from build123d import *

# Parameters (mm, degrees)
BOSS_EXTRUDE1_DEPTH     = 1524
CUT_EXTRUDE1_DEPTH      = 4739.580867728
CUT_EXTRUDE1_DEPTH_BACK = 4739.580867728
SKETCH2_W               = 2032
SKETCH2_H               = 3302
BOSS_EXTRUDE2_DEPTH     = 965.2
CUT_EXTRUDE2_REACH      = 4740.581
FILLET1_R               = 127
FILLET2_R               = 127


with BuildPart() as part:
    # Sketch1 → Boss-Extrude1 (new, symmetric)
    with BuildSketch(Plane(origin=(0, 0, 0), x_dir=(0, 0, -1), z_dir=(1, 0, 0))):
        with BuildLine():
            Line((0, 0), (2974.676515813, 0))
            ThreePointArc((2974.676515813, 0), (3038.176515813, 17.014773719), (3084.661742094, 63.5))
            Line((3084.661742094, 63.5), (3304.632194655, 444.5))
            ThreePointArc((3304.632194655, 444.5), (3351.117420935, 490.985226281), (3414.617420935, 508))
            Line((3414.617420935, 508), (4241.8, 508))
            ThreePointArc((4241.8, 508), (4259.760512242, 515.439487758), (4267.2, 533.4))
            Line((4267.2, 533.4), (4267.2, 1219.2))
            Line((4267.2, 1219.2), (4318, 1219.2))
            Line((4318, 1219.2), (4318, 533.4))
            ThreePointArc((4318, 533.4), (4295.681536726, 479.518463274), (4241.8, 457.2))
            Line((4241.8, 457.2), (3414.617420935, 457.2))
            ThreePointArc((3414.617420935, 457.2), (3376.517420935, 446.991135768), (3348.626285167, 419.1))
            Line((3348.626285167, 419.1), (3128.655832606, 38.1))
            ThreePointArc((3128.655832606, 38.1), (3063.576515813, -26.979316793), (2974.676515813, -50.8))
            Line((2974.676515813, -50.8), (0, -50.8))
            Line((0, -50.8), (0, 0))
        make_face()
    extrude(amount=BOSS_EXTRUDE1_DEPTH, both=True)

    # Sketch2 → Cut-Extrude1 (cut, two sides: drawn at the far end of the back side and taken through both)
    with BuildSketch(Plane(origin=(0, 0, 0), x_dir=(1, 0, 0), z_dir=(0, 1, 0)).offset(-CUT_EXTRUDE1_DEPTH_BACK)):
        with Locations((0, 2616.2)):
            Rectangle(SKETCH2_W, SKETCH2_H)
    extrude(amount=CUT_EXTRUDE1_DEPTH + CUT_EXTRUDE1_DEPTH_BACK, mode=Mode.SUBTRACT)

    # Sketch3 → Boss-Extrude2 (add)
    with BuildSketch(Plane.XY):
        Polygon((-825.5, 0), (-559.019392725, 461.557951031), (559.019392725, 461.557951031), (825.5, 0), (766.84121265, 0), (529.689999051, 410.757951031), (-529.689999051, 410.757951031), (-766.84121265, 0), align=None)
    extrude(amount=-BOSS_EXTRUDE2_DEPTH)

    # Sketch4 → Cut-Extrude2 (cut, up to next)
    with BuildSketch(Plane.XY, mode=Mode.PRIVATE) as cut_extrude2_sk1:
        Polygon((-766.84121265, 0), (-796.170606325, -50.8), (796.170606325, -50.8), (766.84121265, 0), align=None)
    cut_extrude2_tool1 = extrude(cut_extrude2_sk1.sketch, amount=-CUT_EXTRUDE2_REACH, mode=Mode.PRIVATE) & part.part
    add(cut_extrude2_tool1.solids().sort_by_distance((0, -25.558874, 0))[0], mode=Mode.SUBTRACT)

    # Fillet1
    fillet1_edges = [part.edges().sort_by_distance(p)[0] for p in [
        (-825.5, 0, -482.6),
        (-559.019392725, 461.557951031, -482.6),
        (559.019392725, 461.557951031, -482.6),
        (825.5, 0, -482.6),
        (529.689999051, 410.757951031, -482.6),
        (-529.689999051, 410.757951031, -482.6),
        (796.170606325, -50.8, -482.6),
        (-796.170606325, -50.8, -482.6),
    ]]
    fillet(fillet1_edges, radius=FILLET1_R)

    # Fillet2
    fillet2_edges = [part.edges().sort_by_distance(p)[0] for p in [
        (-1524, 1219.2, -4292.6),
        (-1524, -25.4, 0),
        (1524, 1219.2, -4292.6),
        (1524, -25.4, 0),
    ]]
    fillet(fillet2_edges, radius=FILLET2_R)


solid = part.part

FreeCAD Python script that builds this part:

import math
import FreeCAD as App
import Part
import Sketcher
from FreeCAD import Vector
Q = App.Units.Quantity


def edges_at(feature, points):
    """Names of the edges that pass closest to the given points."""
    edges = feature.Shape.Edges
    near = lambda p: min(range(len(edges)), key=lambda i: edges[i].distToShape(Part.Vertex(*p))[0])
    return sorted({f"Edge{near(p) + 1}" for p in points})


def add_polygon(sketch, points):
    """Adds a closed chain of lines whose ends are joined by coincident constraints."""
    first, n = sketch.GeometryCount, len(points)
    for a, b in zip(points, points[1:] + points[:1]):
        sketch.addGeometry(Part.LineSegment(App.Vector(*a, 0), App.Vector(*b, 0)), False)
    for i in range(n):
        sketch.addConstraint(Sketcher.Constraint("Coincident", first + i, 2, first + (i + 1) % n, 1))

doc = App.newDocument("Part")
body = doc.addObject("PartDesign::Body", "Body")

sketch1 = doc.addObject("Sketcher::SketchObject", "Sketch")
body.addObject(sketch1)
sketch1.AttachmentSupport = (doc.YZ_Plane, [""])
sketch1.MapMode = "FlatFace"
sketch1.addGeometry(Part.LineSegment(Vector(0, -2975, 0), Vector(0, 0, 0)), False)
sketch1.addGeometry(Part.LineSegment(Vector(0, 0, 0), Vector(-51, 0, 0)), False)
sketch1.addGeometry(Part.LineSegment(Vector(-51, 0, 0), Vector(-51, -2975, 0)), False)
sketch1.addGeometry(Part.ArcOfCircle(Part.Circle(Vector(127, -2975, 0), Vector(0, 0, 1), 178), math.radians(180), math.radians(240)), False)
sketch1.addGeometry(Part.LineSegment(Vector(38, -3129, 0), Vector(419, -3349, 0)), False)
sketch1.addGeometry(Part.ArcOfCircle(Part.Circle(Vector(381, -3415, 0), Vector(0, 0, 1), 76), math.radians(0), math.radians(60)), False)
sketch1.addGeometry(Part.LineSegment(Vector(457, -3415, 0), Vector(457, -4242, 0)), False)
sketch1.addGeometry(Part.ArcOfCircle(Part.Circle(Vector(533, -4242, 0), Vector(0, 0, 1), 76), math.radians(-180), math.radians(-90)), False)
sketch1.addGeometry(Part.LineSegment(Vector(533, -4318, 0), Vector(1219, -4318, 0)), False)
sketch1.addGeometry(Part.LineSegment(Vector(1219, -4318, 0), Vector(1219, -4267, 0)), False)
sketch1.addGeometry(Part.LineSegment(Vector(1219, -4267, 0), Vector(533, -4267, 0)), False)
sketch1.addGeometry(Part.ArcOfCircle(Part.Circle(Vector(533, -4242, 0), Vector(0, 0, 1), 25), math.radians(180), math.radians(270)), False)
sketch1.addGeometry(Part.LineSegment(Vector(508, -4242, 0), Vector(508, -3415, 0)), False)
sketch1.addGeometry(Part.ArcOfCircle(Part.Circle(Vector(381, -3415, 0), Vector(0, 0, 1), 127), math.radians(0), math.radians(60)), False)
sketch1.addGeometry(Part.LineSegment(Vector(444, -3305, 0), Vector(64, -3085, 0)), False)
sketch1.addGeometry(Part.ArcOfCircle(Part.Circle(Vector(127, -2975, 0), Vector(0, 0, 1), 127), math.radians(180), math.radians(240)), False)
sketch1.addConstraint(Sketcher.Constraint("Coincident", 0, 2, 1, 1))
sketch1.addConstraint(Sketcher.Constraint("Coincident", 1, 2, 2, 1))
sketch1.addConstraint(Sketcher.Constraint("Tangent", 2, 2, 3, 1))
sketch1.addConstraint(Sketcher.Constraint("Tangent", 3, 2, 4, 1))
sketch1.addConstraint(Sketcher.Constraint("Tangent", 4, 2, 5, 2))
sketch1.addConstraint(Sketcher.Constraint("Tangent", 5, 1, 6, 1))
sketch1.addConstraint(Sketcher.Constraint("Tangent", 6, 2, 7, 1))
sketch1.addConstraint(Sketcher.Constraint("Tangent", 7, 2, 8, 1))
sketch1.addConstraint(Sketcher.Constraint("Coincident", 8, 2, 9, 1))
sketch1.addConstraint(Sketcher.Constraint("Coincident", 9, 2, 10, 1))
sketch1.addConstraint(Sketcher.Constraint("Tangent", 10, 2, 11, 2))
sketch1.addConstraint(Sketcher.Constraint("Tangent", 11, 1, 12, 1))
sketch1.addConstraint(Sketcher.Constraint("Tangent", 12, 2, 13, 1))
sketch1.addConstraint(Sketcher.Constraint("Tangent", 13, 2, 14, 1))
sketch1.addConstraint(Sketcher.Constraint("Tangent", 14, 2, 15, 2))
sketch1.addConstraint(Sketcher.Constraint("Tangent", 15, 1, 0, 1))
sketch1.addConstraint(Sketcher.Constraint("Vertical", 0))
sketch1.addConstraint(Sketcher.Constraint("Horizontal", 1))
sketch1.addConstraint(Sketcher.Constraint("Vertical", 2))
sketch1.addConstraint(Sketcher.Constraint("Vertical", 6))
sketch1.addConstraint(Sketcher.Constraint("Horizontal", 8))
sketch1.addConstraint(Sketcher.Constraint("Vertical", 9))
sketch1.addConstraint(Sketcher.Constraint("Horizontal", 10))
sketch1.addConstraint(Sketcher.Constraint("Vertical", 12))
sketch1.addConstraint(Sketcher.Constraint("Coincident", 0, 2, -1, 1))
sketch1.addConstraint(Sketcher.Constraint("Coincident", 11, 3, 7, 3))
sketch1.addConstraint(Sketcher.Constraint("Coincident", 13, 3, 5, 3))
sketch1.addConstraint(Sketcher.Constraint("Coincident", 15, 3, 3, 3))
sketch1.addConstraint(Sketcher.Constraint("Equal", 5, 7))
sketch1.addConstraint(Sketcher.Constraint("Equal", 13, 15))
sketch1.addConstraint(Sketcher.Constraint("Parallel", 4, 14))
sketch1.addConstraint(Sketcher.Constraint("Radius", 3, Q("7 in")))
sketch1.addConstraint(Sketcher.Constraint("Radius", 5, Q("3 in")))
sketch1.addConstraint(Sketcher.Constraint("DistanceX", 8, 1, 8, 2, Q("27 in")))
sketch1.addConstraint(Sketcher.Constraint("DistanceX", -1, 1, 5, 3, Q("15 in")))
sketch1.addConstraint(Sketcher.Constraint("DistanceY", 7, 3, -1, 1, Q("167 in")))
sketch1.addConstraint(Sketcher.Constraint("Angle", 4, Q("-30 deg")))
sketch1.addConstraint(Sketcher.Constraint("DistanceY", 6, 2, 6, 1, 827.182579))
pad1 = doc.addObject("PartDesign::Pad", "Pad")
body.addObject(pad1)
pad1.Profile = sketch1
pad1.Length = Q("120 in")
pad1.Midplane = True

sketch2 = doc.addObject("Sketcher::SketchObject", "Sketch001")
body.addObject(sketch2)
sketch2.AttachmentSupport = (doc.XZ_Plane, [""])
sketch2.MapMode = "FlatFace"
add_polygon(sketch2, [(-1016, -4267), (-1016, -965), (1016, -965), (1016, -4267)])
sketch2.addConstraint(Sketcher.Constraint("Vertical", 0))
sketch2.addConstraint(Sketcher.Constraint("Horizontal", 1))
sketch2.addConstraint(Sketcher.Constraint("Vertical", 2))
sketch2.addConstraint(Sketcher.Constraint("Horizontal", 3))
sketch2.addConstraint(Sketcher.Constraint("DistanceX", 1, 1, 1, 2, Q("80 in")))
sketch2.addConstraint(Sketcher.Constraint("DistanceY", 0, 1, 0, 2, Q("130 in")))
sketch2.addConstraint(Sketcher.Constraint("DistanceX", 0, 2, -1, 1, Q("40 in")))
sketch2.addConstraint(Sketcher.Constraint("DistanceY", 0, 2, -1, 1, Q("38 in")))
pocket1 = doc.addObject("PartDesign::Pocket", "Pocket")
body.addObject(pocket1)
pocket1.Profile = sketch2
pocket1.Type = "ThroughAll"
pocket1.Midplane = True

sketch3 = doc.addObject("Sketcher::SketchObject", "Sketch002")
body.addObject(sketch3)
sketch3.AttachmentSupport = (doc.XY_Plane, [""])
sketch3.MapMode = "FlatFace"
add_polygon(sketch3, [(-559, 462), (-826, 0), (-767, 0), (-530, 411), (530, 411), (767, 0), (826, 0), (559, 462)])
sketch3.addConstraint(Sketcher.Constraint("Horizontal", 1))
sketch3.addConstraint(Sketcher.Constraint("Horizontal", 3))
sketch3.addConstraint(Sketcher.Constraint("Horizontal", 5))
sketch3.addConstraint(Sketcher.Constraint("Horizontal", 7))
sketch3.addConstraint(Sketcher.Constraint("Symmetric", 1, 2, 4, 2, -1, 1))
sketch3.addConstraint(Sketcher.Constraint("Symmetric", 0, 2, 5, 2, -2))
sketch3.addConstraint(Sketcher.Constraint("Parallel", 0, 2))
sketch3.addConstraint(Sketcher.Constraint("Parallel", 4, 6))
sketch3.addConstraint(Sketcher.Constraint("Equal", 2, 4))
sketch3.addConstraint(Sketcher.Constraint("Angle", 0, Q("-120 deg")))
sketch3.addConstraint(Sketcher.Constraint("DistanceX", 0, 2, 5, 2, Q("65 in")))
sketch3.addConstraint(Sketcher.Constraint("DistanceY", 3, 2, 6, 2, Q("2 in")))
sketch3.addConstraint(Sketcher.Constraint("DistanceX", 3, 1, 3, 2, 1059.379998))
sketch3.addConstraint(Sketcher.Constraint("DistanceX", 1, 1, 1, 2, 58.658787))
pad2 = doc.addObject("PartDesign::Pad", "Pad001")
body.addObject(pad2)
pad2.Profile = sketch3
pad2.Length = Q("38 in")
pad2.Reversed = True

sketch4 = doc.addObject("Sketcher::SketchObject", "Sketch003")
body.addObject(sketch4)
sketch4.AttachmentSupport = (doc.XY_Plane, [""])
sketch4.MapMode = "FlatFace"
add_polygon(sketch4, [(-767, 0), (-796, -51), (796, -51), (767, 0)])
sketch4.addConstraint(Sketcher.Constraint("Horizontal", 1))
sketch4.addConstraint(Sketcher.Constraint("Horizontal", 3))
sketch4.addConstraint(Sketcher.Constraint("Symmetric", 2, 2, 3, 2, -1, 1))
sketch4.addConstraint(Sketcher.Constraint("Equal", 0, 2))
sketch4.addConstraint(Sketcher.Constraint("DistanceY", 0, 2, -1, 1, Q("2 in")))
sketch4.addConstraint(Sketcher.Constraint("Angle", 0, Q("-120 deg")))
sketch4.addConstraint(Sketcher.Constraint("DistanceX", 1, 1, 1, 2, 1592.341213))
pocket2 = doc.addObject("PartDesign::Pocket", "Pocket001")
body.addObject(pocket2)
pocket2.Profile = sketch4
pocket2.Type = "UpToFirst"
doc.recompute()

fillet = doc.addObject("PartDesign::Fillet", "Fillet")
body.addObject(fillet)
fillet.Base = (pocket2, edges_at(pocket2, [
    (-825.5, 0, -482.6),
    (-559.019, 461.558, -482.6),
    (559.019, 461.558, -482.6),
    (825.5, 0, -482.6),
    (529.69, 410.758, -482.6),
    (-529.69, 410.758, -482.6),
    (796.171, -50.8, -482.6),
    (-796.171, -50.8, -482.6),
]))
fillet.Radius = Q("5 in")
doc.recompute()

fillet2 = doc.addObject("PartDesign::Fillet", "Fillet001")
body.addObject(fillet2)
fillet2.Base = (fillet, edges_at(fillet, [
    (-1524, 1219.2, -4292.6),
    (-1524, -25.4, 0),
    (1524, 1219.2, -4292.6),
    (1524, -25.4, 0),
]))
fillet2.Radius = Q("5 in")

doc.recompute()
